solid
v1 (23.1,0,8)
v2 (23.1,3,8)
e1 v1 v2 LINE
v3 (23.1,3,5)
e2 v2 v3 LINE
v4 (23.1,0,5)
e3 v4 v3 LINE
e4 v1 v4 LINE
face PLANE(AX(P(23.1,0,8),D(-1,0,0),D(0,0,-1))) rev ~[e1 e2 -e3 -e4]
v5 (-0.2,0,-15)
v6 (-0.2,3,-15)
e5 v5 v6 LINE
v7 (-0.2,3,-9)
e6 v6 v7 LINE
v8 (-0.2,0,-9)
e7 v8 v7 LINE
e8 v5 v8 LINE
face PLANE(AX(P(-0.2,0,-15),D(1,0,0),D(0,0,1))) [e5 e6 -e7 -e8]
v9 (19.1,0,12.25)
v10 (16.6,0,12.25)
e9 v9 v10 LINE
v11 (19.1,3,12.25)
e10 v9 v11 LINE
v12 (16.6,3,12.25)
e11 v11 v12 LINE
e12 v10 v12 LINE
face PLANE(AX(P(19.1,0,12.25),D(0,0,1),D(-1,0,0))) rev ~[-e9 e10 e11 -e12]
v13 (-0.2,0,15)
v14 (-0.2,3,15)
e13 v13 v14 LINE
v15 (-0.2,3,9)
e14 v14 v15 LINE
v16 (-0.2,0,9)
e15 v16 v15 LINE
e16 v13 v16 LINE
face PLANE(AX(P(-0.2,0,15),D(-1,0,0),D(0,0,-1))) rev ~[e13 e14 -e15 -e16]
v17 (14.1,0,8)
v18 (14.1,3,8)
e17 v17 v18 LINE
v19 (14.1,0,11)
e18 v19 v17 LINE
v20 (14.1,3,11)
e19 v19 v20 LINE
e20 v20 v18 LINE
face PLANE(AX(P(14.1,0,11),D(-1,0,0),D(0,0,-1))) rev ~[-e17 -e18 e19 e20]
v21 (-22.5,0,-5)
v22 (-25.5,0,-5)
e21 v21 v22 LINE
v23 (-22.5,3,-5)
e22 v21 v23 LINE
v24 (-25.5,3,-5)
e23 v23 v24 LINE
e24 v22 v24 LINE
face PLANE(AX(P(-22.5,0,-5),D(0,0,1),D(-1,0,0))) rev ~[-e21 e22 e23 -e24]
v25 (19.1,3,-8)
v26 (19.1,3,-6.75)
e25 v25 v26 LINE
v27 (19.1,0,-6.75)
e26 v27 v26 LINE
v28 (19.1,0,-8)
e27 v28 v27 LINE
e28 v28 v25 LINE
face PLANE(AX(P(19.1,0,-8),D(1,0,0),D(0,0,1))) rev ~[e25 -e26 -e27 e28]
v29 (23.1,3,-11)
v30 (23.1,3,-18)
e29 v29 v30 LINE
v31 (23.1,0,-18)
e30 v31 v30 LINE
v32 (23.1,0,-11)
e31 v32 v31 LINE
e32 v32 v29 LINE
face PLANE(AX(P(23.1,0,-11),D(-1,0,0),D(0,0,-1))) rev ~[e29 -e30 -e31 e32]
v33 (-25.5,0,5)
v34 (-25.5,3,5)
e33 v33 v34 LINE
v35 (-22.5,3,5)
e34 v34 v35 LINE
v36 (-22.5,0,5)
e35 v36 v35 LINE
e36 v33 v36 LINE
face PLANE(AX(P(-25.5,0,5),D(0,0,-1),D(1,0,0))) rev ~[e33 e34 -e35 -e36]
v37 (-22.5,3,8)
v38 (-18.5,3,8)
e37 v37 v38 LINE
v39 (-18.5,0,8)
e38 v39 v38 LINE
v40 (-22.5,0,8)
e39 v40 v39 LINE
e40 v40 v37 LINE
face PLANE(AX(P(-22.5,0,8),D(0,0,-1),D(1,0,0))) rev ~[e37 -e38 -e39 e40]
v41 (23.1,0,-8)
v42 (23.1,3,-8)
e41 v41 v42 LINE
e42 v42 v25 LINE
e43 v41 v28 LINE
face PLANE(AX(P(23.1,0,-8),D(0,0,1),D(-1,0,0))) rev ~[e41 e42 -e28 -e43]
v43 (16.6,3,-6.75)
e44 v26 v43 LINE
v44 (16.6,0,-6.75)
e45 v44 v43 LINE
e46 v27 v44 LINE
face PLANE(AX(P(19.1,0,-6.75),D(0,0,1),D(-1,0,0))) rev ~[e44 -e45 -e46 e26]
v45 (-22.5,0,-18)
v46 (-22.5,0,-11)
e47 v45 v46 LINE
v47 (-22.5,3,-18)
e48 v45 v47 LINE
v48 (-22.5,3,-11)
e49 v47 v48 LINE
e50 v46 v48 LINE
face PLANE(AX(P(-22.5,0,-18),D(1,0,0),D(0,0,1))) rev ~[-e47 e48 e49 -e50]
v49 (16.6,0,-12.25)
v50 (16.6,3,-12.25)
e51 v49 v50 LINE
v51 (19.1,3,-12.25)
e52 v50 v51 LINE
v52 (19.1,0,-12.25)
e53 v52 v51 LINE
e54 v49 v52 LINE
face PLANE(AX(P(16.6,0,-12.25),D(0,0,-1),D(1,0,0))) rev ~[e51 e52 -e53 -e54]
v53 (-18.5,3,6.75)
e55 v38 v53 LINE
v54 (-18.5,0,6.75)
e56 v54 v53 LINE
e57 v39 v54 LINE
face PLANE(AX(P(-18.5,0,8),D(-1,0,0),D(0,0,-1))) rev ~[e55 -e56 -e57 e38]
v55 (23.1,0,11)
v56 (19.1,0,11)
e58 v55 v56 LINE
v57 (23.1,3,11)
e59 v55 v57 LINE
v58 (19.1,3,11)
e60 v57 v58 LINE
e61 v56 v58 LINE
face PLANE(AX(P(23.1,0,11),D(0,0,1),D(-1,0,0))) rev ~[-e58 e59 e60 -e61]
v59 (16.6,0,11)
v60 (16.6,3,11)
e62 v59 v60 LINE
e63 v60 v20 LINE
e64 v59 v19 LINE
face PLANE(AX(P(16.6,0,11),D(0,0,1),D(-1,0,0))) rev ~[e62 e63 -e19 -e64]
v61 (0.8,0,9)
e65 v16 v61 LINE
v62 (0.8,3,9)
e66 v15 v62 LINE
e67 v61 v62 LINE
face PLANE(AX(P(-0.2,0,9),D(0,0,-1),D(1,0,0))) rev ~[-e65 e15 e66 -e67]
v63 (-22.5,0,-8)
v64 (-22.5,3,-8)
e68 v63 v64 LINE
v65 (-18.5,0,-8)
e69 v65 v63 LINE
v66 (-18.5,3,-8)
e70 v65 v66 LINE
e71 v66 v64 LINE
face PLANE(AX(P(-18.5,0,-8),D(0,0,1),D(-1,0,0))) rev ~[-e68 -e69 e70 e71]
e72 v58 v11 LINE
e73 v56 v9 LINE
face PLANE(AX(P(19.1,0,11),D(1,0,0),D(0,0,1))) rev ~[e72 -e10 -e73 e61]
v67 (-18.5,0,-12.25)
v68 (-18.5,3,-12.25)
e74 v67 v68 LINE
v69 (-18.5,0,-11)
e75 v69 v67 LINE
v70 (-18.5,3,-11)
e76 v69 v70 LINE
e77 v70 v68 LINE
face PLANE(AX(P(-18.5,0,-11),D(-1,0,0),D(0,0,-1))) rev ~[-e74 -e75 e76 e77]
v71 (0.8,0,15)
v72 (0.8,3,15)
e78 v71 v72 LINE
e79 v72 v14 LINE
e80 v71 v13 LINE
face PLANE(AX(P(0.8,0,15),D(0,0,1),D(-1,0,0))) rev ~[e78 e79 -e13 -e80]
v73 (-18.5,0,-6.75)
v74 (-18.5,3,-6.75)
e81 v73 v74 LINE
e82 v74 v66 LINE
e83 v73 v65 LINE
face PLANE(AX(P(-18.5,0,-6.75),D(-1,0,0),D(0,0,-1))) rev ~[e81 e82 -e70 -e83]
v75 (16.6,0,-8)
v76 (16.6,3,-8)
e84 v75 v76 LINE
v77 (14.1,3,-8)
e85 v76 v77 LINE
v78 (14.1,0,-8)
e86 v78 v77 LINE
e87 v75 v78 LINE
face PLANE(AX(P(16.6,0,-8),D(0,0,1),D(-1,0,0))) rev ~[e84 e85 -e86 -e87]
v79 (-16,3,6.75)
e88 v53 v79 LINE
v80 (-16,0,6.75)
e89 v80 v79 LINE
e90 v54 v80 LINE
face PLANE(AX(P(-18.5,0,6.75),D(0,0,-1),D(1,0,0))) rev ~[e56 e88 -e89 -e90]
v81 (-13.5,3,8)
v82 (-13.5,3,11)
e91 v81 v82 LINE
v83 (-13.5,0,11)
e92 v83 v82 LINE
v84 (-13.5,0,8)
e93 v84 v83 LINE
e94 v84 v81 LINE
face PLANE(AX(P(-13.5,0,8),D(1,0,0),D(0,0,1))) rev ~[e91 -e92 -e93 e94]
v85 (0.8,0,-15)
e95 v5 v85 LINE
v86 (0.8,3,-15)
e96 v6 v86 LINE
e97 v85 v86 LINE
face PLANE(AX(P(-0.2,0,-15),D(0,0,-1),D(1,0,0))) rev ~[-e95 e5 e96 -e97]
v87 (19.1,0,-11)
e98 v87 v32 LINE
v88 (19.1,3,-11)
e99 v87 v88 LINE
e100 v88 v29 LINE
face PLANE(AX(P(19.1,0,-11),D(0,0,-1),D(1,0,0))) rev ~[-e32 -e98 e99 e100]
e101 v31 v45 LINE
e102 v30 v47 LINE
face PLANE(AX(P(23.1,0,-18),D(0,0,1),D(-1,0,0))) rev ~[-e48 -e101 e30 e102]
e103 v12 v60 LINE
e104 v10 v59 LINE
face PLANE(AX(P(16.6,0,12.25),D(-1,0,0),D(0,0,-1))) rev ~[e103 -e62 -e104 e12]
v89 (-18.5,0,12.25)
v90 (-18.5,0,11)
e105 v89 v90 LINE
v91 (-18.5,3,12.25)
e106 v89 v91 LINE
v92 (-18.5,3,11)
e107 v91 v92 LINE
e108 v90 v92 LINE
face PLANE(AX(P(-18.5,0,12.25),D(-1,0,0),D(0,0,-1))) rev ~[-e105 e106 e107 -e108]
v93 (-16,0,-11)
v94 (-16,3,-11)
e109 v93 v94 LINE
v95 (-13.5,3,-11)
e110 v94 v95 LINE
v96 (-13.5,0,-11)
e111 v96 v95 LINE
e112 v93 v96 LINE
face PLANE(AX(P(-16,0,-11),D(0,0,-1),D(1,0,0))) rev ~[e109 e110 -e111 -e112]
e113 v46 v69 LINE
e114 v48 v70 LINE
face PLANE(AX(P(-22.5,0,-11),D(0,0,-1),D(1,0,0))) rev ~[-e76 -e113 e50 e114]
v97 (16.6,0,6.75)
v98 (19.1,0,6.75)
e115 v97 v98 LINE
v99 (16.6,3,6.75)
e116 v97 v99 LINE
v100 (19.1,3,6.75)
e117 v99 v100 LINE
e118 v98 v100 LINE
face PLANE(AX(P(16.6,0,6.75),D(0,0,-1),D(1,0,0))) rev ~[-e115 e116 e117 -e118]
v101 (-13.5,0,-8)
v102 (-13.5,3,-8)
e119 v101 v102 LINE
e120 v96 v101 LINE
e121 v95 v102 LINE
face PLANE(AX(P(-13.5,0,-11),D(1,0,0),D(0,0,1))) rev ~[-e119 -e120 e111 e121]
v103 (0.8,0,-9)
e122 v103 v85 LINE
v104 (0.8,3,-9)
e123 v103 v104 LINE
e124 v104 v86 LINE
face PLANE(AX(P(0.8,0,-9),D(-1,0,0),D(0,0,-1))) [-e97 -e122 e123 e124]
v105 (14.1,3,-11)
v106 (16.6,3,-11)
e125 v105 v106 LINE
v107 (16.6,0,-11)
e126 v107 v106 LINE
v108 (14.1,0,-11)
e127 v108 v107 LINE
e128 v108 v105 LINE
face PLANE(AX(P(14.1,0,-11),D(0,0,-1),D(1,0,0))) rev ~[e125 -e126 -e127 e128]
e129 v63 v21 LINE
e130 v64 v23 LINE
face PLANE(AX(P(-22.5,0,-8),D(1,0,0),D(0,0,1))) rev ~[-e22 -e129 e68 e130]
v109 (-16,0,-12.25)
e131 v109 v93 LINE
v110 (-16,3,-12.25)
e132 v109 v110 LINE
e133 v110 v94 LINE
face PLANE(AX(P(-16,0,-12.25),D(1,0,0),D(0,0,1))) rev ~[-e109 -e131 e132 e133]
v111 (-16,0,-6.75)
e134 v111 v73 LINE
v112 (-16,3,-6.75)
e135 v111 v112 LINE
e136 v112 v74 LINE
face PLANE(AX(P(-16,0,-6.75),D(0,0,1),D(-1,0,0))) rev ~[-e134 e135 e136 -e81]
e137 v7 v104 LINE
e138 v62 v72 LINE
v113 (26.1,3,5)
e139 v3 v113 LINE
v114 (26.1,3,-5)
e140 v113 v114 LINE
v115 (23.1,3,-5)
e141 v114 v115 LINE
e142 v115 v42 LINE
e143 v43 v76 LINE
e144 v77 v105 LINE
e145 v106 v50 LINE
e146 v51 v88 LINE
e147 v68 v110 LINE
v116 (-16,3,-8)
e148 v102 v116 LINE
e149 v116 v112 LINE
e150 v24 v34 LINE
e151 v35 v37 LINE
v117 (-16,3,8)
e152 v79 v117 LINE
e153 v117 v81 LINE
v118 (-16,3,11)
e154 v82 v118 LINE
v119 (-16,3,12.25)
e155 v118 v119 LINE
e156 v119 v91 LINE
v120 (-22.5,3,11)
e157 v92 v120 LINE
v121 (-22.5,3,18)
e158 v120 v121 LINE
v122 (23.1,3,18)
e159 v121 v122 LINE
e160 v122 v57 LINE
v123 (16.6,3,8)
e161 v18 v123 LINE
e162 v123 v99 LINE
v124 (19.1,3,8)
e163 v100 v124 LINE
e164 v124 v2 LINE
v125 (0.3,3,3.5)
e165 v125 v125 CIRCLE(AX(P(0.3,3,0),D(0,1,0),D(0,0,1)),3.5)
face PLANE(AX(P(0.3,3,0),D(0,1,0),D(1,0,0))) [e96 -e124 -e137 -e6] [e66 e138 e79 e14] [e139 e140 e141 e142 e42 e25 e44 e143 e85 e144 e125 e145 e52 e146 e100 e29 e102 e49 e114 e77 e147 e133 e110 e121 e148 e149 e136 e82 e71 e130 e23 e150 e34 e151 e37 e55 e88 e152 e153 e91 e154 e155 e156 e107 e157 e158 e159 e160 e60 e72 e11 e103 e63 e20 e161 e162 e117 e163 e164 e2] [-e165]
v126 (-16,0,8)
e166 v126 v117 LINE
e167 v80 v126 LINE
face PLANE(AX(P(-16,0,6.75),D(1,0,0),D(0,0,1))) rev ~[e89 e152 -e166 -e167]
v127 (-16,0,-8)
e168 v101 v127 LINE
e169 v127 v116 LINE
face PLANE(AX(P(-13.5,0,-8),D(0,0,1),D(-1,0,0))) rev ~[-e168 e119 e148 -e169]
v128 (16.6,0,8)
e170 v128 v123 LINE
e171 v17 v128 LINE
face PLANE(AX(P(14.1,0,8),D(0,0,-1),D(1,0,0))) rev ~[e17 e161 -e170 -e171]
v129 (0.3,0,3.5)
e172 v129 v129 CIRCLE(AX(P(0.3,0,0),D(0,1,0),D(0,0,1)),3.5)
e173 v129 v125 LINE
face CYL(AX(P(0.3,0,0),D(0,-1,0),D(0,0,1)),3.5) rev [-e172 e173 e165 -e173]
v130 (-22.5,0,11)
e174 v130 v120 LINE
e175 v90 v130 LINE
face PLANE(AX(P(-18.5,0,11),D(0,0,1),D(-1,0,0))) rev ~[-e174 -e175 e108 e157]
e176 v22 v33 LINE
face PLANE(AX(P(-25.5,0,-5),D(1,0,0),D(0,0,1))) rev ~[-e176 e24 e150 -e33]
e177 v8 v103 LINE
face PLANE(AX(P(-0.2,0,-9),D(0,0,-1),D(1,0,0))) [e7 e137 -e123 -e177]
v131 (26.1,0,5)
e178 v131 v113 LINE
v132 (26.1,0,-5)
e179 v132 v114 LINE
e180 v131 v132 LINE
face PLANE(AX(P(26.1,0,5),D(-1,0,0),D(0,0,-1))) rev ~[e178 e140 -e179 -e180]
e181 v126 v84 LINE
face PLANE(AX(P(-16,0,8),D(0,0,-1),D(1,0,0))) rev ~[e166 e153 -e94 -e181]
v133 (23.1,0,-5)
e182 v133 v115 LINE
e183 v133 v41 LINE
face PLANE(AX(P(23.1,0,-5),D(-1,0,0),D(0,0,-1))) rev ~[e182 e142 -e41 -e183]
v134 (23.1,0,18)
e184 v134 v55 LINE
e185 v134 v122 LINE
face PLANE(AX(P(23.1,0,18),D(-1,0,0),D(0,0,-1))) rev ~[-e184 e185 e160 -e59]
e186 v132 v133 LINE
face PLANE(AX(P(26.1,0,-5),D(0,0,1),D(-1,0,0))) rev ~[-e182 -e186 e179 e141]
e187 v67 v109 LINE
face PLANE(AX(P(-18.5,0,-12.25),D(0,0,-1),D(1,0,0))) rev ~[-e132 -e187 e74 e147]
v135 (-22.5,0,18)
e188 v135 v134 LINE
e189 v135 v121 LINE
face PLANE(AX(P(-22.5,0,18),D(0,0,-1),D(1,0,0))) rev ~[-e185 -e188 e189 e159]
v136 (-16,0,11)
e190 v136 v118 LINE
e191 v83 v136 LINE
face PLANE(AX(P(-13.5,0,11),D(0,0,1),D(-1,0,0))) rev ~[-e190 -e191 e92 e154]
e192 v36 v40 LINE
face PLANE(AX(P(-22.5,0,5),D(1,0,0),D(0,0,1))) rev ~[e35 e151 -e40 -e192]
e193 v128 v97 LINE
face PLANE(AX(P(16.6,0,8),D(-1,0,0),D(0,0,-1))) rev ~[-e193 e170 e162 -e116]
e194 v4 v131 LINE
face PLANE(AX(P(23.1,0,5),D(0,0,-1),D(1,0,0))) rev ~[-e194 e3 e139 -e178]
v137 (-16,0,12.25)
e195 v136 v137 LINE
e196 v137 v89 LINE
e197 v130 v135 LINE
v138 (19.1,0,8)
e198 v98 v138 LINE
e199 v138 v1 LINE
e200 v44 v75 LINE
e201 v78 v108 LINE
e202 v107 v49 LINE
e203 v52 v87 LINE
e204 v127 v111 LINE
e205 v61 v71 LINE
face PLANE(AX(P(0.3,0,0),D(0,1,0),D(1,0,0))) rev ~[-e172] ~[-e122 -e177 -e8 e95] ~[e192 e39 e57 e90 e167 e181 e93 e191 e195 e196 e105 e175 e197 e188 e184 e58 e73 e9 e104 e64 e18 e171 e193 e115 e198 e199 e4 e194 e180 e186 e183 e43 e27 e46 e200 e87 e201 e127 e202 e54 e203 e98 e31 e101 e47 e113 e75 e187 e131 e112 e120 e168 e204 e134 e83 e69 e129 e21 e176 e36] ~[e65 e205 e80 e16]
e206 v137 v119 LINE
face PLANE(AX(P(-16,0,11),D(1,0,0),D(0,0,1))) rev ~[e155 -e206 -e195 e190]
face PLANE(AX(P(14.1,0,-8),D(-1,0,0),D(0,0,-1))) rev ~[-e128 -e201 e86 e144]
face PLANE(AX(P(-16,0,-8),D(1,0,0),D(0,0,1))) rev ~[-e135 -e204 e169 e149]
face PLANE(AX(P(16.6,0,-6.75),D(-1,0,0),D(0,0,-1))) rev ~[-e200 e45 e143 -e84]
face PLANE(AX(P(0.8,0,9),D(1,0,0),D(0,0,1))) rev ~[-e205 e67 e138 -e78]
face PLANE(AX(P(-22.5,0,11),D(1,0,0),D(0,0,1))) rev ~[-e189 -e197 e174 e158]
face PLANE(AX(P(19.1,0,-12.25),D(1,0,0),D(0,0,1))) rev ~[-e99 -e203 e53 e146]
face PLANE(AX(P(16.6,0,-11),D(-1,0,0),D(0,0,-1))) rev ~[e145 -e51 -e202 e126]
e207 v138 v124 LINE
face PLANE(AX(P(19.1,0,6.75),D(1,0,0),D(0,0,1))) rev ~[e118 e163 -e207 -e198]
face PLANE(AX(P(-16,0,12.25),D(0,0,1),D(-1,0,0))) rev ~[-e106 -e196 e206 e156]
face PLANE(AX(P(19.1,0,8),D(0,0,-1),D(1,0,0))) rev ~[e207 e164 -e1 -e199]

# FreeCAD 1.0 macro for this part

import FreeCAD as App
import Part
import Sketcher

V = App.Vector


def add_polygon(sketch, points):
    """Adds a closed chain of lines whose ends are joined by coincident constraints."""
    first, n = sketch.GeometryCount, len(points)
    for a, b in zip(points, points[1:] + points[:1]):
        sketch.addGeometry(Part.LineSegment(App.Vector(*a, 0), App.Vector(*b, 0)), False)
    for i in range(n):
        sketch.addConstraint(Sketcher.Constraint("Coincident", first + i, 2, first + (i + 1) % n, 1))

doc = App.newDocument("Part")
body = doc.addObject("PartDesign::Body", "Body")

# Sketch on XZ plane
sketch1 = doc.addObject("Sketcher::SketchObject", "Sketch")
body.addObject(sketch1)
sketch1.AttachmentSupport = (doc.XZ_Plane, [""])
sketch1.MapMode = "FlatFace"
add_polygon(sketch1, [(19.1, -6.75), (16.6, -6.75), (16.6, -8), (14.1, -8), (14.1, -11), (16.6, -11), (16.6, -12.25), (19.1, -12.25), (19.1, -11), (23.1, -11), (23.1, -18), (-22.5, -18), (-22.5, -11), (-18.5, -11), (-18.5, -12.25), (-16, -12.25), (-16, -11), (-13.5, -11), (-13.5, -8), (-16, -8), (-16, -6.75), (-18.5, -6.75), (-18.5, -8), (-22.5, -8), (-22.5, -5), (-25.5, -5), (-25.5, 5), (-22.5, 5), (-22.5, 8), (-18.5, 8), (-18.5, 6.75), (-16, 6.75), (-16, 8), (-13.5, 8), (-13.5, 11), (-16, 11), (-16, 12.25), (-18.5, 12.25), (-18.5, 11), (-22.5, 11), (-22.5, 18), (23.1, 18), (23.1, 11), (19.1, 11), (19.1, 12.25), (16.6, 12.25), (16.6, 11), (14.1, 11), (14.1, 8), (16.6, 8), (16.6, 6.75), (19.1, 6.75), (19.1, 8), (23.1, 8), (23.1, 5), (26.1, 5), (26.1, -5), (23.1, -5), (23.1, -8), (19.1, -8)])  # lines 0-59
add_polygon(sketch1, [(0.8, 15), (-0.2, 15), (-0.2, 9), (0.8, 9)])  # lines 60-63
sketch1.addGeometry(Part.Circle(V(0.3, 0, 0), V(0, 0, 1), 3.5), False)  # 64
add_polygon(sketch1, [(-0.2, -15), (0.8, -15), (0.8, -9), (-0.2, -9)])  # lines 65-68
sketch1.addConstraint([
    Sketcher.Constraint("Horizontal", 0),
    Sketcher.Constraint("Vertical", 1),
    Sketcher.Constraint("Horizontal", 2),
    Sketcher.Constraint("Vertical", 3),
    Sketcher.Constraint("Horizontal", 4),
    Sketcher.Constraint("Vertical", 5),
    Sketcher.Constraint("Horizontal", 6),
    Sketcher.Constraint("Vertical", 7),
    Sketcher.Constraint("Horizontal", 8),
    Sketcher.Constraint("Vertical", 9),
    Sketcher.Constraint("Horizontal", 10),
    Sketcher.Constraint("Vertical", 11),
    Sketcher.Constraint("Horizontal", 12),
    Sketcher.Constraint("Vertical", 13),
    Sketcher.Constraint("Horizontal", 14),
    Sketcher.Constraint("Vertical", 15),
    Sketcher.Constraint("Horizontal", 16),
    Sketcher.Constraint("Vertical", 17),
    Sketcher.Constraint("Horizontal", 18),
    Sketcher.Constraint("Vertical", 19),
    Sketcher.Constraint("Horizontal", 20),
    Sketcher.Constraint("Vertical", 21),
    Sketcher.Constraint("Horizontal", 22),
    Sketcher.Constraint("Vertical", 23),
    Sketcher.Constraint("Horizontal", 24),
    Sketcher.Constraint("Vertical", 25),
    Sketcher.Constraint("Horizontal", 26),
    Sketcher.Constraint("Vertical", 27),
    Sketcher.Constraint("Horizontal", 28),
    Sketcher.Constraint("Vertical", 29),
    Sketcher.Constraint("Horizontal", 30),
    Sketcher.Constraint("Vertical", 31),
    Sketcher.Constraint("Horizontal", 32),
    Sketcher.Constraint("Vertical", 33),
    Sketcher.Constraint("Horizontal", 34),
    Sketcher.Constraint("Vertical", 35),
    Sketcher.Constraint("Horizontal", 36),
    Sketcher.Constraint("Vertical", 37),
    Sketcher.Constraint("Horizontal", 38),
    Sketcher.Constraint("Vertical", 39),
    Sketcher.Constraint("Horizontal", 40),
    Sketcher.Constraint("Vertical", 41),
    Sketcher.Constraint("Horizontal", 42),
    Sketcher.Constraint("Vertical", 43),
    Sketcher.Constraint("Horizontal", 44),
    Sketcher.Constraint("Vertical", 45),
    Sketcher.Constraint("Horizontal", 46),
    Sketcher.Constraint("Vertical", 47),
    Sketcher.Constraint("Horizontal", 48),
    Sketcher.Constraint("Vertical", 49),
    Sketcher.Constraint("Horizontal", 50),
    Sketcher.Constraint("Vertical", 51),
    Sketcher.Constraint("Horizontal", 52),
    Sketcher.Constraint("Vertical", 53),
    Sketcher.Constraint("Horizontal", 54),
    Sketcher.Constraint("Vertical", 55),
    Sketcher.Constraint("Horizontal", 56),
    Sketcher.Constraint("Vertical", 57),
    Sketcher.Constraint("Horizontal", 58),
    Sketcher.Constraint("Vertical", 59),
    Sketcher.Constraint("Horizontal", 60),
    Sketcher.Constraint("Vertical", 61),
    Sketcher.Constraint("Horizontal", 62),
    Sketcher.Constraint("Vertical", 63),
    Sketcher.Constraint("Horizontal", 65),
    Sketcher.Constraint("Vertical", 66),
    Sketcher.Constraint("Horizontal", 67),
    Sketcher.Constraint("Vertical", 68),
    Sketcher.Constraint("Symmetric", 23, 2, 26, 2, -1),
    Sketcher.Constraint("Symmetric", 21, 2, 28, 2, -1),
    Sketcher.Constraint("Symmetric", 19, 2, 30, 2, -1),
    Sketcher.Constraint("Symmetric", 17, 2, 32, 2, -1),
    Sketcher.Constraint("Symmetric", 15, 2, 34, 2, -1),
    Sketcher.Constraint("Symmetric", 13, 2, 36, 2, -1),
    Sketcher.Constraint("Symmetric", 11, 2, 38, 2, -1),
    Sketcher.Constraint("Symmetric", 9, 2, 40, 2, -1),
    Sketcher.Constraint("Symmetric", 7, 2, 42, 2, -1),
    Sketcher.Constraint("Symmetric", 5, 2, 44, 2, -1),
    Sketcher.Constraint("Symmetric", 3, 2, 46, 2, -1),
    Sketcher.Constraint("Symmetric", 1, 2, 48, 2, -1),
    Sketcher.Constraint("Symmetric", 53, 2, 56, 2, -1),
    Sketcher.Constraint("Symmetric", 51, 2, 58, 2, -1),
    Sketcher.Constraint("Symmetric", 63, 2, 65, 2, -1),
    Sketcher.Constraint("Symmetric", 61, 2, 67, 2, -1),
    Sketcher.Constraint("PointOnObject", 64, 3, -1),
    Sketcher.Constraint("Horizontal", 4, 2, 7, 2),
    Sketcher.Constraint("Horizontal", 8, 2, 11, 2),
    Sketcher.Constraint("Horizontal", 6, 2, 13, 2),
    Sketcher.Constraint("Horizontal", 12, 2, 15, 2),
    Sketcher.Constraint("Horizontal", 2, 2, 17, 2),
    Sketcher.Constraint("Horizontal", 0, 2, 19, 2),
    Sketcher.Constraint("Horizontal", 18, 2, 21, 2),
    Sketcher.Constraint("Horizontal", 30, 2, 49, 2),
    Sketcher.Constraint("Horizontal", 48, 2, 51, 2),
    Sketcher.Constraint("Horizontal", 26, 2, 53, 2),
    Sketcher.Constraint("Vertical", 1, 2, 4, 2),
    Sketcher.Constraint("Vertical", 15, 2, 18, 2),
    Sketcher.Constraint("Vertical", 13, 2, 20, 2),
    Sketcher.Constraint("Vertical", 11, 2, 22, 2),
    Sketcher.Constraint("Vertical", 43, 2, 50, 2),
    Sketcher.Constraint("Vertical", 41, 2, 52, 2),
    Sketcher.Constraint("Equal", 0, 2),
    Sketcher.Constraint("Equal", 8, 12),
    Sketcher.Constraint("Equal", 6, 14),
    Sketcher.Constraint("Equal", 14, 16),
    Sketcher.Constraint("Equal", 26, 54),
    Sketcher.Constraint("Equal", 56, 3),
    Sketcher.Constraint("Equal", 1, 5),
    Sketcher.Constraint("Equal", 17, 23),
    Sketcher.Constraint("Diameter", 64, 7.0),
    Sketcher.Constraint("DistanceX", 8, 1, 8, 2, 4.0),
    Sketcher.Constraint("DistanceX", 24, 2, 24, 1, 3.0),
    Sketcher.Constraint("DistanceX", 60, 2, 60, 1, 1.0),
    Sketcher.Constraint("DistanceY", 9, 2, 9, 1, 7.0),
    Sketcher.Constraint("DistanceY", 25, 1, 25, 2, 10.0),
    Sketcher.Constraint("DistanceY", 61, 2, 61, 1, 6.0),
    Sketcher.Constraint("DistanceX", 0, 2, 0, 1, 2.5),
    Sketcher.Constraint("DistanceX", 10, 2, 10, 1, 45.6),
    Sketcher.Constraint("DistanceX", 14, 2, -1, 1, 16.0),
    Sketcher.Constraint("DistanceY", -1, 1, 60, 2, 15.0),
    Sketcher.Constraint("DistanceY", 1, 2, 1, 1, 1.25),
    Sketcher.Constraint("DistanceX", -1, 1, 64, 3, 0.3),
    Sketcher.Constraint("DistanceX", 60, 2, -1, 1, 0.2),
])
pad1 = doc.addObject("PartDesign::Pad", "Pad")
body.addObject(pad1)
pad1.Profile = sketch1
pad1.Length = 3
pad1.Reversed = True

doc.recompute()
